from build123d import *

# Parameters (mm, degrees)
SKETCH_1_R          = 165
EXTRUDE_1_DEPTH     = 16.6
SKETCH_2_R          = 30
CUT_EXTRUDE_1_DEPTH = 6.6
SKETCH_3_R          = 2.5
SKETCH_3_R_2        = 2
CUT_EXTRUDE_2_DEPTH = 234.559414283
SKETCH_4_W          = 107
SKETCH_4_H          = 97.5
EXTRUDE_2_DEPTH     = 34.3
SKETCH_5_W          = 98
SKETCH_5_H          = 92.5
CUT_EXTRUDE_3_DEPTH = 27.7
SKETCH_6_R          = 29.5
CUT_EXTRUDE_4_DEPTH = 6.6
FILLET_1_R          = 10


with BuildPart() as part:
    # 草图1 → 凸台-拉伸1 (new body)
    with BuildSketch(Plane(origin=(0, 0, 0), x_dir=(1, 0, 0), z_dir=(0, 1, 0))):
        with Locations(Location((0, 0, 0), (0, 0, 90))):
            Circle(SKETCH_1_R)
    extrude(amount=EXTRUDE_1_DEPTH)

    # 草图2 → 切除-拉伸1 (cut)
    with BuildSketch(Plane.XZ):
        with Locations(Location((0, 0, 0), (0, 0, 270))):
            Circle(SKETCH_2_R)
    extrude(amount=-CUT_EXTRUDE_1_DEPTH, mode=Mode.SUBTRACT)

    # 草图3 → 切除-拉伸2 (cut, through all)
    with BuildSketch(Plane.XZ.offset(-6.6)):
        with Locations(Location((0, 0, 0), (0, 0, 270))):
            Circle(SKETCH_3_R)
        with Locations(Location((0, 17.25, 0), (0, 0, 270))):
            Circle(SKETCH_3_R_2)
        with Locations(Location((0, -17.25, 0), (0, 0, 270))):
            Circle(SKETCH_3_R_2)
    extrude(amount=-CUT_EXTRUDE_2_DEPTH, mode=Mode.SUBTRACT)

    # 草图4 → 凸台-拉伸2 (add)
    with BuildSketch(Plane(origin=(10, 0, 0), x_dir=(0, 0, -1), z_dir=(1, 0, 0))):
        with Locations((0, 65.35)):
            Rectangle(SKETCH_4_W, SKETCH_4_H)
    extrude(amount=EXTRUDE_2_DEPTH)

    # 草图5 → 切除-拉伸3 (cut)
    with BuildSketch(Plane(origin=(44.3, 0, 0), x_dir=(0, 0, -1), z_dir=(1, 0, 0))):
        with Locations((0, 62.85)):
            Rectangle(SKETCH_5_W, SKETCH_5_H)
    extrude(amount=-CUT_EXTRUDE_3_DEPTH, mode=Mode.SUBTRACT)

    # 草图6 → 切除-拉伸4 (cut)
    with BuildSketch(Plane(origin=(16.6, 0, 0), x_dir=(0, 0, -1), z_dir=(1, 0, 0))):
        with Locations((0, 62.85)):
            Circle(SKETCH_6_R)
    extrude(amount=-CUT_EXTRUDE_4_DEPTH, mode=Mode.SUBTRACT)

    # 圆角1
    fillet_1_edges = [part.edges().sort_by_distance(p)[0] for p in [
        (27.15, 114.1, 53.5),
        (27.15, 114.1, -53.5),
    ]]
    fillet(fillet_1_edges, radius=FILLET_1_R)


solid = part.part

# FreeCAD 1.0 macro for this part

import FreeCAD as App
import Part
import Sketcher


def edges_at(feature, points):
    """Names of the edges that pass closest to the given points."""
    edges = feature.Shape.Edges
    near = lambda p: min(range(len(edges)), key=lambda i: edges[i].distToShape(Part.Vertex(*p))[0])
    return sorted({f"Edge{near(p) + 1}" for p in points})


def add_polygon(sketch, points):
    """Adds a closed chain of lines whose ends are joined by coincident constraints."""
    first, n = sketch.GeometryCount, len(points)
    for a, b in zip(points, points[1:] + points[:1]):
        sketch.addGeometry(Part.LineSegment(App.Vector(*a, 0), App.Vector(*b, 0)), False)
    for i in range(n):
        sketch.addConstraint(Sketcher.Constraint("Coincident", first + i, 2, first + (i + 1) % n, 1))

doc = App.newDocument("Part")
body = doc.addObject("PartDesign::Body", "Body")

# Sketch on XZ plane
sketch1 = body.newObject("Sketcher::SketchObject", "Sketch")
sketch1.AttachmentSupport = (doc.getObject("XZ_Plane"), [""])
sketch1.MapMode = "FlatFace"
sketch1.addGeometry(Part.Circle(App.Vector(0, 0, 0), App.Vector(0, 0, 1), 165), False)
sketch1.addConstraint(Sketcher.Constraint("Coincident", 0, 3, -1, 1))
sketch1.addConstraint(Sketcher.Constraint("Diameter", 0, 330.0))
pad1 = body.newObject("PartDesign::Pad", "Pad")
pad1.Profile = sketch1
pad1.Length = 16.6
pad1.Reversed = True

# Sketch on XZ plane
sketch2 = body.newObject("Sketcher::SketchObject", "Sketch001")
sketch2.AttachmentSupport = (doc.getObject("XZ_Plane"), [""])
sketch2.MapMode = "FlatFace"
sketch2.addGeometry(Part.Circle(App.Vector(0, 0, 0), App.Vector(0, 0, 1), 30), False)
sketch2.addConstraint(Sketcher.Constraint("Coincident", 0, 3, -1, 1))
sketch2.addConstraint(Sketcher.Constraint("Diameter", 0, 60.0))
pocket1 = body.newObject("PartDesign::Pocket", "Pocket")
pocket1.Profile = sketch2
pocket1.Length = 6.6

# Sketch on XZ plane
sketch3 = body.newObject("Sketcher::SketchObject", "Sketch002")
sketch3.AttachmentSupport = (doc.getObject("XZ_Plane"), [""])
sketch3.MapMode = "FlatFace"
sketch3.AttachmentOffset = App.Placement(App.Vector(0, 0, -6.6), App.Rotation())
sketch3.addGeometry(Part.Circle(App.Vector(0, 0, 0), App.Vector(0, 0, 1), 2.5), False)
sketch3.addGeometry(Part.Circle(App.Vector(0, 17.2, 0), App.Vector(0, 0, 1), 2), False)
sketch3.addGeometry(Part.Circle(App.Vector(0, -17.2, 0), App.Vector(0, 0, 1), 2), False)
sketch3.addConstraint(Sketcher.Constraint("Coincident", 0, 3, -1, 1))
sketch3.addConstraint(Sketcher.Constraint("Equal", 1, 2))
sketch3.addConstraint(Sketcher.Constraint("Symmetric", 1, 3, 2, 3, -1, 1))
sketch3.addConstraint(Sketcher.Constraint("PointOnObject", 1, 3, -2))
sketch3.addConstraint(Sketcher.Constraint("Diameter", 0, 5.0))
sketch3.addConstraint(Sketcher.Constraint("Diameter", 1, 4.0))
sketch3.addConstraint(Sketcher.Constraint("DistanceY", 2, 3, 1, 3, 34.5))
pocket2 = body.newObject("PartDesign::Pocket", "Pocket001")
pocket2.Profile = sketch3
pocket2.Type = "ThroughAll"

# Sketch on YZ plane
sketch4 = body.newObject("Sketcher::SketchObject", "Sketch003")
sketch4.AttachmentSupport = (doc.getObject("YZ_Plane"), [""])
sketch4.MapMode = "FlatFace"
sketch4.AttachmentOffset = App.Placement(App.Vector(0, 0, 10), App.Rotation())
add_polygon(sketch4, [(114, 54), (17, 54), (17, -54), (114, -54)])  # lines 0-3
sketch4.addConstraint(Sketcher.Constraint("Horizontal", 0))
sketch4.addConstraint(Sketcher.Constraint("Vertical", 1))
sketch4.addConstraint(Sketcher.Constraint("Horizontal", 2))
sketch4.addConstraint(Sketcher.Constraint("Vertical", 3))
sketch4.addConstraint(Sketcher.Constraint("DistanceY", 1, 2, 1, 1, 107.0))
sketch4.addConstraint(Sketcher.Constraint("DistanceX", 0, 2, 0, 1, 97.5))
sketch4.addConstraint(Sketcher.Constraint("DistanceX", -1, 1, 0, 2, 16.6))
sketch4.addConstraint(Sketcher.Constraint("DistanceY", -1, 1, 0, 2, 53.5))
pad2 = body.newObject("PartDesign::Pad", "Pad001")
pad2.Profile = sketch4
pad2.Length = 34.3

# Sketch on YZ plane
sketch5 = body.newObject("Sketcher::SketchObject", "Sketch004")
sketch5.AttachmentSupport = (doc.getObject("YZ_Plane"), [""])
sketch5.MapMode = "FlatFace"
sketch5.AttachmentOffset = App.Placement(App.Vector(0, 0, 44.3), App.Rotation())
add_polygon(sketch5, [(109, 49), (17, 49), (17, -49), (109, -49)])  # lines 0-3
sketch5.addConstraint(Sketcher.Constraint("Horizontal", 0))
sketch5.addConstraint(Sketcher.Constraint("Vertical", 1))
sketch5.addConstraint(Sketcher.Constraint("Horizontal", 2))
sketch5.addConstraint(Sketcher.Constraint("Vertical", 3))
sketch5.addConstraint(Sketcher.Constraint("DistanceY", 1, 2, 1, 1, 98.0))
sketch5.addConstraint(Sketcher.Constraint("DistanceX", 0, 2, 0, 1, 92.5))
sketch5.addConstraint(Sketcher.Constraint("DistanceY", -1, 1, 0, 2, 49.0))
sketch5.addConstraint(Sketcher.Constraint("DistanceX", -1, 1, 0, 2, 16.6))
pocket3 = body.newObject("PartDesign::Pocket", "Pocket002")
pocket3.Profile = sketch5
pocket3.Length = 27.7

# Sketch on YZ plane
sketch6 = body.newObject("Sketcher::SketchObject", "Sketch005")
sketch6.AttachmentSupport = (doc.getObject("YZ_Plane"), [""])
sketch6.MapMode = "FlatFace"
sketch6.AttachmentOffset = App.Placement(App.Vector(0, 0, 16.6), App.Rotation())
sketch6.addGeometry(Part.Circle(App.Vector(63, 0, 0), App.Vector(0, 0, 1), 30), False)
sketch6.addConstraint(Sketcher.Constraint("PointOnObject", 0, 3, -1))
sketch6.addConstraint(Sketcher.Constraint("Diameter", 0, 59.0))
sketch6.addConstraint(Sketcher.Constraint("DistanceX", -1, 1, 0, 3, 62.85))
pocket4 = body.newObject("PartDesign::Pocket", "Pocket003")
pocket4.Profile = sketch6
pocket4.Length = 6.6
doc.recompute()

fillet = body.newObject("PartDesign::Fillet", "Fillet")
fillet.Base = (pocket4, edges_at(pocket4, [(27.15, 114.1, 53.5), (27.15, 114.1, -53.5)]))
fillet.Radius = 10

doc.recompute()
